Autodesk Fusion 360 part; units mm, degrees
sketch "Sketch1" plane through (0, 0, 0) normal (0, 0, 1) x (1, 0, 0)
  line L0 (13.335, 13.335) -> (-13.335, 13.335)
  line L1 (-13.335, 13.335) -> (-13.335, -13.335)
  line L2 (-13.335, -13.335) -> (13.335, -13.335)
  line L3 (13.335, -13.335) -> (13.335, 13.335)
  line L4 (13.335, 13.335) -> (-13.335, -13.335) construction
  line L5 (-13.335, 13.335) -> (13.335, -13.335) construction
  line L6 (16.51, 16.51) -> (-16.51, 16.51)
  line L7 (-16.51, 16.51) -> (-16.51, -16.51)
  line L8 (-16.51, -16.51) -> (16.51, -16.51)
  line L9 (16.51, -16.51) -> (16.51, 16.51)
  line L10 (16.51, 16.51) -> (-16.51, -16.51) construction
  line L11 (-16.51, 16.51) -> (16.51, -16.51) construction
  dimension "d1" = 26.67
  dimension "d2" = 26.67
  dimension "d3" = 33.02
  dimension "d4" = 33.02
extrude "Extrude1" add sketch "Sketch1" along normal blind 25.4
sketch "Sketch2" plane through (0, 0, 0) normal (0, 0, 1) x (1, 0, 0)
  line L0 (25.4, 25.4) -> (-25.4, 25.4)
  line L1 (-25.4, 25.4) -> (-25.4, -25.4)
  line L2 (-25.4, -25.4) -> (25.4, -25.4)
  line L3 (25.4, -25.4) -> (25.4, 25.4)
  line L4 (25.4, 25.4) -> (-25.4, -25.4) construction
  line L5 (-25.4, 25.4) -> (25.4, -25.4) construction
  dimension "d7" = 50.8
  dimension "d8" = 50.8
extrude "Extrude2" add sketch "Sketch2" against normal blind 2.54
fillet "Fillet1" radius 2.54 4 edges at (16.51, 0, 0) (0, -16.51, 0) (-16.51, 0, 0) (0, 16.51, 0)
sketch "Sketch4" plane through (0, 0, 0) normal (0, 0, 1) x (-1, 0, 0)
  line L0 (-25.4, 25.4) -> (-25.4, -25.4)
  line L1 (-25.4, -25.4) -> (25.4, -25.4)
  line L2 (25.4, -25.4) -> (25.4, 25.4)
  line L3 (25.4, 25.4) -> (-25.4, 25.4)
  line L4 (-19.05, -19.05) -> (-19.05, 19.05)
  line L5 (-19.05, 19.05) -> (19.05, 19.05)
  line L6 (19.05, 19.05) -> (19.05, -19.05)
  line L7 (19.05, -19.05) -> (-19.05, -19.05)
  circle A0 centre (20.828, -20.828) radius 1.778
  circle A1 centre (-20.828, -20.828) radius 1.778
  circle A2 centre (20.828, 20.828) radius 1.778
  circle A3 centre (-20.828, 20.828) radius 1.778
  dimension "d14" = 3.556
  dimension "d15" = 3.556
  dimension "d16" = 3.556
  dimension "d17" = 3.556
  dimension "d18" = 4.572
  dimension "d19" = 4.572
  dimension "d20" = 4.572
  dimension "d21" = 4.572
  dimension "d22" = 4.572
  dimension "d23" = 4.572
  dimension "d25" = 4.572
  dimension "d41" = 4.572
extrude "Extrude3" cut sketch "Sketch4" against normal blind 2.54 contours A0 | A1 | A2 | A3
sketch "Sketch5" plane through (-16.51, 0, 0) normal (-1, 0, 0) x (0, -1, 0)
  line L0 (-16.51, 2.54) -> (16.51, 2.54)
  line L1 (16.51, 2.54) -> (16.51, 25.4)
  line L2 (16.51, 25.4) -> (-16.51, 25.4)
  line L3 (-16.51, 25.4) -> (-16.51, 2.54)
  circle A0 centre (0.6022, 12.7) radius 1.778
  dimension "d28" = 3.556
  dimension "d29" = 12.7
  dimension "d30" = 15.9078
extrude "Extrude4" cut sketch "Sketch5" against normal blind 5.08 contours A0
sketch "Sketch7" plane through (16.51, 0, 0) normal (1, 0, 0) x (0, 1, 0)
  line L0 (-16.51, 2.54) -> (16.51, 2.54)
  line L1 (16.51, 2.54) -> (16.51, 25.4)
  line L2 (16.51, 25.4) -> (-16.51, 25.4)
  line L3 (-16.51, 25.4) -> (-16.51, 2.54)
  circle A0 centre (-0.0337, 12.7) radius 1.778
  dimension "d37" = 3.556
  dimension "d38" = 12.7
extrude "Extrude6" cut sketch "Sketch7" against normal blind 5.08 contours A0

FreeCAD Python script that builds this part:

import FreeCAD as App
import Part
import Sketcher
Q = App.Units.Quantity


def edges_at(feature, points):
    """Names of the edges that pass closest to the given points."""
    edges = feature.Shape.Edges
    near = lambda p: min(range(len(edges)), key=lambda i: edges[i].distToShape(Part.Vertex(*p))[0])
    return sorted({f"Edge{near(p) + 1}" for p in points})

doc = App.newDocument("Part")
body = doc.addObject("PartDesign::Body", "Body")

# Sketch on XY plane
sketch1 = body.newObject("Sketcher::SketchObject", "Sketch")
sketch1.AttachmentSupport = (doc.getObject("XY_Plane"), [""])
sketch1.MapMode = "FlatFace"
sketch1.addGeometry([
    Part.LineSegment(App.Vector(17, -17, 0), App.Vector(17, 17, 0)),  # 0
    Part.LineSegment(App.Vector(17, 17, 0), App.Vector(-17, 17, 0)),  # 1
    Part.LineSegment(App.Vector(-17, 17, 0), App.Vector(-17, -17, 0)),  # 2
    Part.LineSegment(App.Vector(-17, -17, 0), App.Vector(17, -17, 0)),  # 3
    Part.LineSegment(App.Vector(-13, 13, 0), App.Vector(13, 13, 0)),  # 4
    Part.LineSegment(App.Vector(13, 13, 0), App.Vector(13, -13, 0)),  # 5
    Part.LineSegment(App.Vector(13, -13, 0), App.Vector(-13, -13, 0)),  # 6
    Part.LineSegment(App.Vector(-13, -13, 0), App.Vector(-13, 13, 0)),  # 7
], False)
sketch1.addConstraint([
    Sketcher.Constraint("Coincident", 0, 2, 1, 1),
    Sketcher.Constraint("Coincident", 1, 2, 2, 1),
    Sketcher.Constraint("Coincident", 2, 2, 3, 1),
    Sketcher.Constraint("Coincident", 3, 2, 0, 1),
    Sketcher.Constraint("Coincident", 4, 2, 5, 1),
    Sketcher.Constraint("Coincident", 5, 2, 6, 1),
    Sketcher.Constraint("Coincident", 6, 2, 7, 1),
    Sketcher.Constraint("Coincident", 7, 2, 4, 1),
    Sketcher.Constraint("Vertical", 0),
    Sketcher.Constraint("Horizontal", 1),
    Sketcher.Constraint("Vertical", 2),
    Sketcher.Constraint("Horizontal", 3),
    Sketcher.Constraint("Horizontal", 4),
    Sketcher.Constraint("Vertical", 5),
    Sketcher.Constraint("Horizontal", 6),
    Sketcher.Constraint("Vertical", 7),
    Sketcher.Constraint("Symmetric", 0, 2, 2, 2, -1, 1),
    Sketcher.Constraint("Symmetric", 4, 2, 6, 2, -1, 1),
    Sketcher.Constraint("Equal", 3, 0),
    Sketcher.Constraint("Equal", 6, 5),
    Sketcher.Constraint("DistanceX", 1, 2, 1, 1, Q("1.3 in")),
    Sketcher.Constraint("DistanceX", 4, 1, 4, 2, Q("1.05 in")),
])
pad1 = body.newObject("PartDesign::Pad", "Pad")
pad1.Profile = sketch1
pad1.Length = Q("1 in")

# Sketch on XY plane
sketch2 = body.newObject("Sketcher::SketchObject", "Sketch001")
sketch2.AttachmentSupport = (doc.getObject("XY_Plane"), [""])
sketch2.MapMode = "FlatFace"
sketch2.addGeometry([
    Part.LineSegment(App.Vector(25, -25, 0), App.Vector(25, 25, 0)),
    Part.LineSegment(App.Vector(25, 25, 0), App.Vector(-25, 25, 0)),
    Part.LineSegment(App.Vector(-25, 25, 0), App.Vector(-25, -25, 0)),
    Part.LineSegment(App.Vector(-25, -25, 0), App.Vector(25, -25, 0)),
], False)
sketch2.addConstraint([
    Sketcher.Constraint("Coincident", 0, 2, 1, 1),
    Sketcher.Constraint("Coincident", 1, 2, 2, 1),
    Sketcher.Constraint("Coincident", 2, 2, 3, 1),
    Sketcher.Constraint("Coincident", 3, 2, 0, 1),
    Sketcher.Constraint("Vertical", 0),
    Sketcher.Constraint("Horizontal", 1),
    Sketcher.Constraint("Vertical", 2),
    Sketcher.Constraint("Horizontal", 3),
    Sketcher.Constraint("Symmetric", 0, 2, 2, 2, -1, 1),
    Sketcher.Constraint("Equal", 3, 0),
    Sketcher.Constraint("DistanceX", 1, 2, 1, 1, Q("2 in")),
])
pad2 = body.newObject("PartDesign::Pad", "Pad001")
pad2.Profile = sketch2
pad2.Length = Q("0.1 in")
pad2.Reversed = True
doc.recompute()

fillet = body.newObject("PartDesign::Fillet", "Fillet")
fillet.Base = (pad2, edges_at(pad2, [
    (16.51, 0, 0),
    (0, -16.51, 0),
    (-16.51, 0, 0),
    (0, 16.51, 0),
]))
fillet.Radius = Q("0.1 in")

# Sketch on XY plane
sketch3 = body.newObject("Sketcher::SketchObject", "Sketch002")
sketch3.AttachmentSupport = (doc.getObject("XY_Plane"), [""])
sketch3.MapMode = "FlatFace"
sketch3.addGeometry([
    Part.Circle(App.Vector(-20.8, 20.8, 0), App.Vector(0, 0, 1), 1.8),
    Part.Circle(App.Vector(20.8, 20.8, 0), App.Vector(0, 0, 1), 1.8),
    Part.Circle(App.Vector(-20.8, -20.8, 0), App.Vector(0, 0, 1), 1.8),
    Part.Circle(App.Vector(20.8, -20.8, 0), App.Vector(0, 0, 1), 1.8),
], False)
sketch3.addConstraint([
    Sketcher.Constraint("Equal", 0, 1),
    Sketcher.Constraint("Equal", 1, 2),
    Sketcher.Constraint("Equal", 2, 3),
    Sketcher.Constraint("Symmetric", 1, 3, 2, 3, -1, 1),
    Sketcher.Constraint("Symmetric", 0, 3, 3, 3, -1, 1),
    Sketcher.Constraint("Symmetric", 0, 3, 1, 3, -2),
    Sketcher.Constraint("Diameter", 0, Q("0.14 in")),
    Sketcher.Constraint("DistanceX", 0, 3, -1, 1, Q("0.82 in")),
    Sketcher.Constraint("DistanceY", -1, 1, 0, 3, Q("0.82 in")),
])
pocket1 = body.newObject("PartDesign::Pocket", "Pocket")
pocket1.Profile = sketch3
pocket1.Length = Q("0.1 in")

# Sketch on YZ plane
sketch4 = body.newObject("Sketcher::SketchObject", "Sketch003")
sketch4.AttachmentSupport = (doc.getObject("YZ_Plane"), [""])
sketch4.MapMode = "FlatFace"
sketch4.AttachmentOffset = App.Placement(App.Vector(0, 0, -0.65 * 25.4), App.Rotation())
sketch4.addGeometry(Part.Circle(App.Vector(-0.6, 12.7, 0), App.Vector(0, 0, 1), 1.8), False)
sketch4.addConstraint([
    Sketcher.Constraint("Diameter", 0, Q("0.14 in")),
    Sketcher.Constraint("DistanceY", -1, 1, 0, 3, Q("0.5 in")),
    Sketcher.Constraint("DistanceX", 0, 3, -1, 1, Q("0.0237 in")),
])
pocket2 = body.newObject("PartDesign::Pocket", "Pocket001")
pocket2.Profile = sketch4
pocket2.Length = Q("0.2 in")
pocket2.Reversed = True

# Sketch on YZ plane
sketch5 = body.newObject("Sketcher::SketchObject", "Sketch004")
sketch5.AttachmentSupport = (doc.getObject("YZ_Plane"), [""])
sketch5.MapMode = "FlatFace"
sketch5.AttachmentOffset = App.Placement(App.Vector(0, 0, 0.65 * 25.4), App.Rotation())
sketch5.addGeometry(Part.Circle(App.Vector(0, 12.7, 0), App.Vector(0, 0, 1), 1.8), False)
sketch5.addConstraint([
    Sketcher.Constraint("Diameter", 0, Q("0.14 in")),
    Sketcher.Constraint("DistanceY", -1, 1, 0, 3, Q("0.5 in")),
    Sketcher.Constraint("DistanceX", 0, 3, -1, 1, 0.0337),
])
pocket3 = body.newObject("PartDesign::Pocket", "Pocket002")
pocket3.Profile = sketch5
pocket3.Length = Q("0.2 in")

doc.recompute()
